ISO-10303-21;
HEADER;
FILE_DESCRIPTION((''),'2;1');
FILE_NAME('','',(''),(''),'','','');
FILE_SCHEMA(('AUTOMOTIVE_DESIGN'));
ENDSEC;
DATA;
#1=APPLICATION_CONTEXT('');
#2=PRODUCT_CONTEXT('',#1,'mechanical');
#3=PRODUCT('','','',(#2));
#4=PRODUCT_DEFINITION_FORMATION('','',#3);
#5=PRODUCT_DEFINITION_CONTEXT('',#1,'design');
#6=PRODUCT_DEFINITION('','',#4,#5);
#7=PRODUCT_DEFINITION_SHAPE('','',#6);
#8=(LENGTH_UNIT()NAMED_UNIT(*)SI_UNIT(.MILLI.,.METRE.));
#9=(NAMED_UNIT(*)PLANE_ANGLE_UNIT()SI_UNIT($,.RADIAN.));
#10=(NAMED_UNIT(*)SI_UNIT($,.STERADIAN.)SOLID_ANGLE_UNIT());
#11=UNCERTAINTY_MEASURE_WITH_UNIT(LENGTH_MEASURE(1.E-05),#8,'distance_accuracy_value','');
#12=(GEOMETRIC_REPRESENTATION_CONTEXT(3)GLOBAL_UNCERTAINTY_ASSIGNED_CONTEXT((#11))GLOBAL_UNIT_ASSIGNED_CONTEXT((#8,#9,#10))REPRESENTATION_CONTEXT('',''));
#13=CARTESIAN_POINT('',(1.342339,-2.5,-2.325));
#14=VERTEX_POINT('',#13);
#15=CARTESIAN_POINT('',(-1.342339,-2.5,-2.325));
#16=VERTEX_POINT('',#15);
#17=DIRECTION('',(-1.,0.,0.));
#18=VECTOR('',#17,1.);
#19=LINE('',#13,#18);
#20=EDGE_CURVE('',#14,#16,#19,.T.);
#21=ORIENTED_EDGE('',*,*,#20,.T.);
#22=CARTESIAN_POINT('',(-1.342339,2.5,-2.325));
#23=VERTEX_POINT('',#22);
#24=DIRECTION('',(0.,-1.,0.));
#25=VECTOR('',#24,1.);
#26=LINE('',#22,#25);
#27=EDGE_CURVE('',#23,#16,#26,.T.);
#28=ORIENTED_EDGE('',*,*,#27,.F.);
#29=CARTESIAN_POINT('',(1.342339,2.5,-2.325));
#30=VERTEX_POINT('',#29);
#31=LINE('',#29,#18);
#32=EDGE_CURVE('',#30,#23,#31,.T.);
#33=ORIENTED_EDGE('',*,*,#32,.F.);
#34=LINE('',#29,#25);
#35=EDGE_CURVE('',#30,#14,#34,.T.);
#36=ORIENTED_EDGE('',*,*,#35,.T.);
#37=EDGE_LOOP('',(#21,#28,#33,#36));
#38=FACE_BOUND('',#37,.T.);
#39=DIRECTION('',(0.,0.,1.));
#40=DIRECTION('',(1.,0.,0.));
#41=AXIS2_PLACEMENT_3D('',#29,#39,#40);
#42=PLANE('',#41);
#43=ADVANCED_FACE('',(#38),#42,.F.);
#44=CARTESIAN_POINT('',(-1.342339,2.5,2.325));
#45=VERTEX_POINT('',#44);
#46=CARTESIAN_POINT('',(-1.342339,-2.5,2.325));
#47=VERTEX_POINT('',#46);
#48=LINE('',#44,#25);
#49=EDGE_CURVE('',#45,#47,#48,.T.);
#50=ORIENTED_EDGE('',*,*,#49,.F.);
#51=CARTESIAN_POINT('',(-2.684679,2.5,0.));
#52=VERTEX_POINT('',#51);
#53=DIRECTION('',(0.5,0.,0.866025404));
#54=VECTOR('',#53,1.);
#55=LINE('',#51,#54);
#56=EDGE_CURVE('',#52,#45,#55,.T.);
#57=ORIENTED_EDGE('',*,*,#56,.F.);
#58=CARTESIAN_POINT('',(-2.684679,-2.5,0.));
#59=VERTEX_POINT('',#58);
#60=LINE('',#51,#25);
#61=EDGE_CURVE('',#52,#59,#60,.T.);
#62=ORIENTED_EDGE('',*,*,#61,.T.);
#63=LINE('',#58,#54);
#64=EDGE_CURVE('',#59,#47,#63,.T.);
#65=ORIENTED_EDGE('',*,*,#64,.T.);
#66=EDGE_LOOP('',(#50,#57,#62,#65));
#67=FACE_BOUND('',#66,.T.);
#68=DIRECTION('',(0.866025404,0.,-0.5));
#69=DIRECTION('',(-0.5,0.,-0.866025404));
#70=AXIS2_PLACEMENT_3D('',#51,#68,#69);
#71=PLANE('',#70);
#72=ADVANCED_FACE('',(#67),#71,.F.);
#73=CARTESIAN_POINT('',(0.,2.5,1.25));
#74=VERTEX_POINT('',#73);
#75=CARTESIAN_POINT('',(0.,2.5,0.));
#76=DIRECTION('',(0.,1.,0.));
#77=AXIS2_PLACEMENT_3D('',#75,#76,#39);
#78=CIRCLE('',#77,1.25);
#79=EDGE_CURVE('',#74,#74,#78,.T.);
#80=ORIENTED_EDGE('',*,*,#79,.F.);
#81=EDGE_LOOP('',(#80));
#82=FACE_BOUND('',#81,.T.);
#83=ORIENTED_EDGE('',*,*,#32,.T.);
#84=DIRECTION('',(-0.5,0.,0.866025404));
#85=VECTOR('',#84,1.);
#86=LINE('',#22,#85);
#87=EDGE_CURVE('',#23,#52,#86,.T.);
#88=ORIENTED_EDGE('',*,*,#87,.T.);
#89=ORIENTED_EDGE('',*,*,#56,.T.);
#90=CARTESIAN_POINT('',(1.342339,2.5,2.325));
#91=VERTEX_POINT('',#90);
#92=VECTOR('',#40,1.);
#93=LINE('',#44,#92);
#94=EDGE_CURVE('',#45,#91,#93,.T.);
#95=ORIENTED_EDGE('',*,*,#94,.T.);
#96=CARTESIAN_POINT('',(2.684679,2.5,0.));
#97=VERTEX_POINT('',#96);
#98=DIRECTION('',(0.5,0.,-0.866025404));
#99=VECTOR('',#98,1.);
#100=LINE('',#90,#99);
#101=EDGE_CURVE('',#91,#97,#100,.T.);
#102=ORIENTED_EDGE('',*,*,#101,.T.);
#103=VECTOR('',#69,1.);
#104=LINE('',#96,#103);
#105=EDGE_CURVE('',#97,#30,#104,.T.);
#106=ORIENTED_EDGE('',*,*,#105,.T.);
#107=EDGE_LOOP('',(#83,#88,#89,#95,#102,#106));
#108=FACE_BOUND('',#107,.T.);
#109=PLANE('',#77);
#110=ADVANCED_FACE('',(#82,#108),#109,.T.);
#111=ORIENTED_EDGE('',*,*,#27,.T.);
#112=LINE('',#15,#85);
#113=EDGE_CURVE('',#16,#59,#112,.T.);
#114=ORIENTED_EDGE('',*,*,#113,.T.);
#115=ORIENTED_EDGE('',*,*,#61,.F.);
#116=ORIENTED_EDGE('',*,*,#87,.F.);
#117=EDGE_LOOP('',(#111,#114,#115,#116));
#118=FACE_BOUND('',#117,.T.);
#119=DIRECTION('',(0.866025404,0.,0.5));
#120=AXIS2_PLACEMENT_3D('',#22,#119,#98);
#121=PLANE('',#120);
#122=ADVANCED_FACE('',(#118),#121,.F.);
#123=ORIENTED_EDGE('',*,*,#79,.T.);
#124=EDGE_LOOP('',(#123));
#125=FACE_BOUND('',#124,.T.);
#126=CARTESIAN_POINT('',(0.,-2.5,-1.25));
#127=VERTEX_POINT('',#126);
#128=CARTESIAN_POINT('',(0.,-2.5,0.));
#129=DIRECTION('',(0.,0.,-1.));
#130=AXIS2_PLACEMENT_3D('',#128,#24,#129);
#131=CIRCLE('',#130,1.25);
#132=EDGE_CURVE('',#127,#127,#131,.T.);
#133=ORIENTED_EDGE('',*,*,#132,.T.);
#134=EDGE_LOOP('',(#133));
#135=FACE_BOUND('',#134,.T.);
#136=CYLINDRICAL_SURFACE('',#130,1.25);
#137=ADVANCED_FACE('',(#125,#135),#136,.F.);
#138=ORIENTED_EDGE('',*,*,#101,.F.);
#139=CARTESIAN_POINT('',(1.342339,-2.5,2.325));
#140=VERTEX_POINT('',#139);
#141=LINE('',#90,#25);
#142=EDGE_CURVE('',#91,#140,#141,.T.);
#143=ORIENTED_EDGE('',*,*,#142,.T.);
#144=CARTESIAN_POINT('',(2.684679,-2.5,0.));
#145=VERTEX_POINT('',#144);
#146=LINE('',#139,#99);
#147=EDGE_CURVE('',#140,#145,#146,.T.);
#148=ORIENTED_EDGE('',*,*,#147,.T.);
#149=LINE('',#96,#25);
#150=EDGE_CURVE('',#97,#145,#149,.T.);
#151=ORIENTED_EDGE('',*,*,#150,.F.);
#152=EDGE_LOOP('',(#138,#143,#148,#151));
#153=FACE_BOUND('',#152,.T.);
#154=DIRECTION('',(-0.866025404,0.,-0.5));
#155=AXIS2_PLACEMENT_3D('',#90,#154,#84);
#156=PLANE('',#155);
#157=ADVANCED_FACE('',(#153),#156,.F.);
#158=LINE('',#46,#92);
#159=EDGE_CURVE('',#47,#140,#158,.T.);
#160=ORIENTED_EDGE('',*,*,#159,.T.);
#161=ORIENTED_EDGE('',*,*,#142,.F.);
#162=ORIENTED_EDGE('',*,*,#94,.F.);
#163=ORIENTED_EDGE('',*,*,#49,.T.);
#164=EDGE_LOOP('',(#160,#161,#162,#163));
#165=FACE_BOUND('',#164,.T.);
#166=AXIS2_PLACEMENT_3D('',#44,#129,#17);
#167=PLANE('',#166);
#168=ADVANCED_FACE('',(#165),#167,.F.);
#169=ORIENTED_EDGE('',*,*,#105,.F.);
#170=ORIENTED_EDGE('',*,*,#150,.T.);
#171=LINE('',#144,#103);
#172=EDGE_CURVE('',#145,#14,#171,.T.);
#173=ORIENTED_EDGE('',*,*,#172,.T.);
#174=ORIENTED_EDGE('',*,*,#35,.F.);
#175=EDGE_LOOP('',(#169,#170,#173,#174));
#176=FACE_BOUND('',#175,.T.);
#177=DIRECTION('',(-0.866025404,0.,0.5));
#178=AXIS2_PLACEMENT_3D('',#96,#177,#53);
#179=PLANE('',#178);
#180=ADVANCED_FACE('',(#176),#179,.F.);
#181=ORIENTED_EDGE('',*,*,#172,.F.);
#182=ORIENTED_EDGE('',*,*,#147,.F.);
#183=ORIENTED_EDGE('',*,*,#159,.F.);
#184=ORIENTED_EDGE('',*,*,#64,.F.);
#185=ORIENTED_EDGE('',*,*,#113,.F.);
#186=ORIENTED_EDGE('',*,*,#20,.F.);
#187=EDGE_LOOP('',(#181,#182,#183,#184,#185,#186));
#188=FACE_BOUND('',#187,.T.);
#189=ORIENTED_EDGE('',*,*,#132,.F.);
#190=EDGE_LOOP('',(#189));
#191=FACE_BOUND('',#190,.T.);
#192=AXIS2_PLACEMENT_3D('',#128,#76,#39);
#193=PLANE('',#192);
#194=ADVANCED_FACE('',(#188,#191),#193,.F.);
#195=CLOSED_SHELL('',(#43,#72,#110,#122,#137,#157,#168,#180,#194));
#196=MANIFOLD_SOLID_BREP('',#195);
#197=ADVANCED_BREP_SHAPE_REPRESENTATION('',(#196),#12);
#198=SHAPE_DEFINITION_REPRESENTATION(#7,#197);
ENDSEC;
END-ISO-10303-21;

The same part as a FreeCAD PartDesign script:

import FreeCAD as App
import Part
import Sketcher

V = App.Vector
Q = App.Units.Quantity


def add_polygon(sketch, points):
    """Adds a closed chain of lines whose ends are joined by coincident constraints."""
    first, n = sketch.GeometryCount, len(points)
    for a, b in zip(points, points[1:] + points[:1]):
        sketch.addGeometry(Part.LineSegment(App.Vector(*a, 0), App.Vector(*b, 0)), False)
    for i in range(n):
        sketch.addConstraint(Sketcher.Constraint("Coincident", first + i, 2, first + (i + 1) % n, 1))

doc = App.newDocument("Part")
body = doc.addObject("PartDesign::Body", "Body")

# Sketch on XZ plane
sketch1 = body.newObject("Sketcher::SketchObject", "Sketch")
sketch1.AttachmentSupport = (doc.getObject("XZ_Plane"), [""])
sketch1.MapMode = "FlatFace"
add_polygon(sketch1, [(2.7, 0), (1.3, -2.3), (-1.3, -2.3), (-2.7, 0), (-1.3, 2.3), (1.3, 2.3)])  # lines 0-5
sketch1.addConstraint([
    Sketcher.Constraint("Horizontal", 1),
    Sketcher.Constraint("Horizontal", 4),
    Sketcher.Constraint("Symmetric", 0, 2, 3, 2, -1, 1),
    Sketcher.Constraint("Symmetric", 2, 2, 5, 2, -1, 1),
    Sketcher.Constraint("PointOnObject", 2, 2, -1),
    Sketcher.Constraint("Parallel", 2, 5),
    Sketcher.Constraint("Vertical", 1, 2, 3, 2),
    Sketcher.Constraint("Angle", 0, Q("-120 deg")),
    Sketcher.Constraint("DistanceY", 1, 2, 3, 2, Q("4.65 mm")),
    Sketcher.Constraint("DistanceX", 1, 2, 1, 1, Q("2.684679 mm")),
])
pad1 = body.newObject("PartDesign::Pad", "Pad")
pad1.Profile = sketch1
pad1.Length = 5
pad1.Midplane = True

# Sketch on YZ plane
sketch2 = body.newObject("Sketcher::SketchObject", "Sketch001")
sketch2.AttachmentSupport = (doc.getObject("YZ_Plane"), [""])
sketch2.MapMode = "FlatFace"
add_polygon(sketch2, [(5.8, 0), (-2.5, 0), (-2.5, -1.2), (5, -1.2)])  # lines 0-3
sketch2.addConstraint([
    Sketcher.Constraint("Horizontal", 0),
    Sketcher.Constraint("Vertical", 1),
    Sketcher.Constraint("Horizontal", 2),
    Sketcher.Constraint("PointOnObject", 0, 2, -1),
    Sketcher.Constraint("Angle", 3, Q("59 deg")),
    Sketcher.Constraint("DistanceX", 2, 1, 2, 2, Q("7.5 mm")),
    Sketcher.Constraint("DistanceX", -1, 1, 2, 2, Q("5 mm")),
    Sketcher.Constraint("DistanceY", 1, 2, 1, 1, Q("1.25 mm")),
])
groove = body.newObject("PartDesign::Groove", "Groove")
groove.Profile = sketch2
groove.ReferenceAxis = (sketch2, ["H_Axis"])
groove.Angle = 360
doc.recompute()

mirrored = body.newObject("PartDesign::Mirrored", "Mirrored")
mirrored.Originals = [groove]
mirrored.MirrorPlane = (doc.getObject("XZ_Plane"), [""])
body.Tip = mirrored

doc.recompute()
